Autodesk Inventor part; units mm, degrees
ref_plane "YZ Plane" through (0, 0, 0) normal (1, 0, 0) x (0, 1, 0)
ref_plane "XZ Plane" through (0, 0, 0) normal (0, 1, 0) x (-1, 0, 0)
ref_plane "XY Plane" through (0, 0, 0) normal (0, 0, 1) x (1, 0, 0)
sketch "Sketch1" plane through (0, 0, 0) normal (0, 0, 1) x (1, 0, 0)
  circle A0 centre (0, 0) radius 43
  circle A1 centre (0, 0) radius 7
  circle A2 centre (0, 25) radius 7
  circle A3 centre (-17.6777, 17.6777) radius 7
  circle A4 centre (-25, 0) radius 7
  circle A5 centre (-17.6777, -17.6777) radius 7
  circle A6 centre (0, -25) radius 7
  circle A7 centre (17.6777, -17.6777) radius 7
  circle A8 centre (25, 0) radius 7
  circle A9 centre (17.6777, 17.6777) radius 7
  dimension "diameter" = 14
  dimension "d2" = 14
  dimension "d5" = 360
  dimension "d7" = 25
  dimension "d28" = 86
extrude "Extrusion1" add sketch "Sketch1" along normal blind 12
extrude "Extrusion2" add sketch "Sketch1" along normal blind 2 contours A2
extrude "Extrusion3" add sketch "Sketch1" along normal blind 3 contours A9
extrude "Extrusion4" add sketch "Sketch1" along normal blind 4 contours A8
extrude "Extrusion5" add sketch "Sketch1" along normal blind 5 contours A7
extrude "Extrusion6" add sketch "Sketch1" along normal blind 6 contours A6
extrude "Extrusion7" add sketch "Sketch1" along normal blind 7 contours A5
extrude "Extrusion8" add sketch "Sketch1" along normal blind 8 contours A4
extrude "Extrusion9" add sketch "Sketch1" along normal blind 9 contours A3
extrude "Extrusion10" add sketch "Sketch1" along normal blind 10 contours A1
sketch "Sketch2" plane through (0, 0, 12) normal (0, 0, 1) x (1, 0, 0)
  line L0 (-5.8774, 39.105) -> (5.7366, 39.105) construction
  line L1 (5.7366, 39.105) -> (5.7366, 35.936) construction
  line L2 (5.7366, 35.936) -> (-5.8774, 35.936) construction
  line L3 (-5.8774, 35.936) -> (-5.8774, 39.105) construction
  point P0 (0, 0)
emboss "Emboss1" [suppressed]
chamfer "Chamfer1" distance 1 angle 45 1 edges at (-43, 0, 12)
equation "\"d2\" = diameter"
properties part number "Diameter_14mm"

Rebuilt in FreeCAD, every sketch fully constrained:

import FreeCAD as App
import Part
import Sketcher


def edges_at(feature, points):
    """Names of the edges that pass closest to the given points."""
    edges = feature.Shape.Edges
    near = lambda p: min(range(len(edges)), key=lambda i: edges[i].distToShape(Part.Vertex(*p))[0])
    return sorted({f"Edge{near(p) + 1}" for p in points})

doc = App.newDocument("Part")
body = doc.addObject("PartDesign::Body", "Body")

# Sketch on XY plane
sketch1 = body.newObject("Sketcher::SketchObject", "Sketch")
sketch1.AttachmentSupport = (doc.getObject("XY_Plane"), [""])
sketch1.MapMode = "FlatFace"
sketch1.addGeometry(Part.Circle(App.Vector(0, 0, 0), App.Vector(0, 0, 1), 43), False)
sketch1.addGeometry(Part.Circle(App.Vector(-17.6777, -17.6777, 0), App.Vector(0, 0, 1), 7), False)
sketch1.addGeometry(Part.Circle(App.Vector(0, -25, 0), App.Vector(0, 0, 1), 7), False)
sketch1.addGeometry(Part.Circle(App.Vector(17.6777, -17.6777, 0), App.Vector(0, 0, 1), 7), False)
sketch1.addGeometry(Part.Circle(App.Vector(-25, 0, 0), App.Vector(0, 0, 1), 7), False)
sketch1.addGeometry(Part.Circle(App.Vector(-17.6777, 17.6777, 0), App.Vector(0, 0, 1), 7), False)
sketch1.addGeometry(Part.Circle(App.Vector(0, 0, 0), App.Vector(0, 0, 1), 7), False)
sketch1.addGeometry(Part.Circle(App.Vector(17.6777, 17.6777, 0), App.Vector(0, 0, 1), 7), False)
sketch1.addGeometry(Part.Circle(App.Vector(25, 0, 0), App.Vector(0, 0, 1), 7), False)
sketch1.addGeometry(Part.Circle(App.Vector(0, 25, 0), App.Vector(0, 0, 1), 7), False)
sketch1.addConstraint(Sketcher.Constraint("Coincident", 0, 3, -1, 1))
sketch1.addConstraint(Sketcher.Constraint("Coincident", 6, 3, -1, 1))
sketch1.addConstraint(Sketcher.Constraint("Equal", 1, 2))
sketch1.addConstraint(Sketcher.Constraint("Equal", 2, 3))
sketch1.addConstraint(Sketcher.Constraint("Equal", 3, 4))
sketch1.addConstraint(Sketcher.Constraint("Equal", 4, 5))
sketch1.addConstraint(Sketcher.Constraint("Equal", 5, 6))
sketch1.addConstraint(Sketcher.Constraint("Equal", 6, 7))
sketch1.addConstraint(Sketcher.Constraint("Equal", 7, 8))
sketch1.addConstraint(Sketcher.Constraint("Equal", 8, 9))
sketch1.addConstraint(Sketcher.Constraint("Symmetric", 3, 3, 5, 3, -1, 1))
sketch1.addConstraint(Sketcher.Constraint("Symmetric", 1, 3, 7, 3, -1, 1))
sketch1.addConstraint(Sketcher.Constraint("Symmetric", 4, 3, 8, 3, -1, 1))
sketch1.addConstraint(Sketcher.Constraint("Symmetric", 2, 3, 9, 3, -1, 1))
sketch1.addConstraint(Sketcher.Constraint("Symmetric", 1, 3, 3, 3, -2))
sketch1.addConstraint(Sketcher.Constraint("PointOnObject", 2, 3, -2))
sketch1.addConstraint(Sketcher.Constraint("PointOnObject", 4, 3, -1))
sketch1.addConstraint(Sketcher.Constraint("Diameter", 0, 86.0))
sketch1.addConstraint(Sketcher.Constraint("Diameter", 1, 14.0))
sketch1.addConstraint(Sketcher.Constraint("DistanceY", 2, 3, -1, 1, 25.0))
sketch1.addConstraint(Sketcher.Constraint("DistanceX", 4, 3, -1, 1, 25.0))
sketch1.addConstraint(Sketcher.Constraint("DistanceX", 1, 3, -1, 1, 17.6777))
sketch1.addConstraint(Sketcher.Constraint("DistanceY", 1, 3, -1, 1, 17.6777))
pad1 = body.newObject("PartDesign::Pad", "Pad")
pad1.Profile = sketch1
pad1.Length = 12

# Sketch on XY plane
sketch2 = body.newObject("Sketcher::SketchObject", "Sketch001")
sketch2.AttachmentSupport = (doc.getObject("XY_Plane"), [""])
sketch2.MapMode = "FlatFace"
sketch2.addGeometry(Part.Circle(App.Vector(0, 25, 0), App.Vector(0, 0, 1), 7), False)
sketch2.addConstraint(Sketcher.Constraint("PointOnObject", 0, 3, -2))
sketch2.addConstraint(Sketcher.Constraint("Diameter", 0, 14.0))
sketch2.addConstraint(Sketcher.Constraint("DistanceY", -1, 1, 0, 3, 25.0))
pad2 = body.newObject("PartDesign::Pad", "Pad001")
pad2.Profile = sketch2
pad2.Length = 2

# Sketch on XY plane
sketch3 = body.newObject("Sketcher::SketchObject", "Sketch002")
sketch3.AttachmentSupport = (doc.getObject("XY_Plane"), [""])
sketch3.MapMode = "FlatFace"
sketch3.addGeometry(Part.Circle(App.Vector(17.6777, 17.6777, 0), App.Vector(0, 0, 1), 7), False)
sketch3.addConstraint(Sketcher.Constraint("Diameter", 0, 14.0))
sketch3.addConstraint(Sketcher.Constraint("DistanceX", -1, 1, 0, 3, 17.6777))
sketch3.addConstraint(Sketcher.Constraint("DistanceY", -1, 1, 0, 3, 17.6777))
pad3 = body.newObject("PartDesign::Pad", "Pad002")
pad3.Profile = sketch3
pad3.Length = 3

# Sketch on XY plane
sketch4 = body.newObject("Sketcher::SketchObject", "Sketch003")
sketch4.AttachmentSupport = (doc.getObject("XY_Plane"), [""])
sketch4.MapMode = "FlatFace"
sketch4.addGeometry(Part.Circle(App.Vector(25, 0, 0), App.Vector(0, 0, 1), 7), False)
sketch4.addConstraint(Sketcher.Constraint("PointOnObject", 0, 3, -1))
sketch4.addConstraint(Sketcher.Constraint("Diameter", 0, 14.0))
sketch4.addConstraint(Sketcher.Constraint("DistanceX", -1, 1, 0, 3, 25.0))
pad4 = body.newObject("PartDesign::Pad", "Pad003")
pad4.Profile = sketch4
pad4.Length = 4

# Sketch on XY plane
sketch5 = body.newObject("Sketcher::SketchObject", "Sketch004")
sketch5.AttachmentSupport = (doc.getObject("XY_Plane"), [""])
sketch5.MapMode = "FlatFace"
sketch5.addGeometry(Part.Circle(App.Vector(17.6777, -17.6777, 0), App.Vector(0, 0, 1), 7), False)
sketch5.addConstraint(Sketcher.Constraint("Diameter", 0, 14.0))
sketch5.addConstraint(Sketcher.Constraint("DistanceX", -1, 1, 0, 3, 17.6777))
sketch5.addConstraint(Sketcher.Constraint("DistanceY", 0, 3, -1, 1, 17.6777))
pad5 = body.newObject("PartDesign::Pad", "Pad004")
pad5.Profile = sketch5
pad5.Length = 5

# Sketch on XY plane
sketch6 = body.newObject("Sketcher::SketchObject", "Sketch005")
sketch6.AttachmentSupport = (doc.getObject("XY_Plane"), [""])
sketch6.MapMode = "FlatFace"
sketch6.addGeometry(Part.Circle(App.Vector(0, -25, 0), App.Vector(0, 0, 1), 7), False)
sketch6.addConstraint(Sketcher.Constraint("PointOnObject", 0, 3, -2))
sketch6.addConstraint(Sketcher.Constraint("Diameter", 0, 14.0))
sketch6.addConstraint(Sketcher.Constraint("DistanceY", 0, 3, -1, 1, 25.0))
pad6 = body.newObject("PartDesign::Pad", "Pad005")
pad6.Profile = sketch6
pad6.Length = 6

# Sketch on XY plane
sketch7 = body.newObject("Sketcher::SketchObject", "Sketch006")
sketch7.AttachmentSupport = (doc.getObject("XY_Plane"), [""])
sketch7.MapMode = "FlatFace"
sketch7.addGeometry(Part.Circle(App.Vector(-17.6777, -17.6777, 0), App.Vector(0, 0, 1), 7), False)
sketch7.addConstraint(Sketcher.Constraint("Diameter", 0, 14.0))
sketch7.addConstraint(Sketcher.Constraint("DistanceX", 0, 3, -1, 1, 17.6777))
sketch7.addConstraint(Sketcher.Constraint("DistanceY", 0, 3, -1, 1, 17.6777))
pad7 = body.newObject("PartDesign::Pad", "Pad006")
pad7.Profile = sketch7
pad7.Length = 7

# Sketch on XY plane
sketch8 = body.newObject("Sketcher::SketchObject", "Sketch007")
sketch8.AttachmentSupport = (doc.getObject("XY_Plane"), [""])
sketch8.MapMode = "FlatFace"
sketch8.addGeometry(Part.Circle(App.Vector(-25, 0, 0), App.Vector(0, 0, 1), 7), False)
sketch8.addConstraint(Sketcher.Constraint("PointOnObject", 0, 3, -1))
sketch8.addConstraint(Sketcher.Constraint("Diameter", 0, 14.0))
sketch8.addConstraint(Sketcher.Constraint("DistanceX", 0, 3, -1, 1, 25.0))
pad8 = body.newObject("PartDesign::Pad", "Pad007")
pad8.Profile = sketch8
pad8.Length = 8

# Sketch on XY plane
sketch9 = body.newObject("Sketcher::SketchObject", "Sketch008")
sketch9.AttachmentSupport = (doc.getObject("XY_Plane"), [""])
sketch9.MapMode = "FlatFace"
sketch9.addGeometry(Part.Circle(App.Vector(-17.6777, 17.6777, 0), App.Vector(0, 0, 1), 7), False)
sketch9.addConstraint(Sketcher.Constraint("Diameter", 0, 14.0))
sketch9.addConstraint(Sketcher.Constraint("DistanceX", 0, 3, -1, 1, 17.6777))
sketch9.addConstraint(Sketcher.Constraint("DistanceY", -1, 1, 0, 3, 17.6777))
pad9 = body.newObject("PartDesign::Pad", "Pad008")
pad9.Profile = sketch9
pad9.Length = 9

# Sketch on XY plane
sketch10 = body.newObject("Sketcher::SketchObject", "Sketch009")
sketch10.AttachmentSupport = (doc.getObject("XY_Plane"), [""])
sketch10.MapMode = "FlatFace"
sketch10.addGeometry(Part.Circle(App.Vector(0, 0, 0), App.Vector(0, 0, 1), 7), False)
sketch10.addConstraint(Sketcher.Constraint("Coincident", 0, 3, -1, 1))
sketch10.addConstraint(Sketcher.Constraint("Diameter", 0, 14.0))
pad10 = body.newObject("PartDesign::Pad", "Pad009")
pad10.Profile = sketch10
pad10.Length = 10
doc.recompute()

chamfer = body.newObject("PartDesign::Chamfer", "Chamfer")
chamfer.Base = (pad10, edges_at(pad10, [(-43, 0, 12)]))
chamfer.Size = 1

doc.recompute()
